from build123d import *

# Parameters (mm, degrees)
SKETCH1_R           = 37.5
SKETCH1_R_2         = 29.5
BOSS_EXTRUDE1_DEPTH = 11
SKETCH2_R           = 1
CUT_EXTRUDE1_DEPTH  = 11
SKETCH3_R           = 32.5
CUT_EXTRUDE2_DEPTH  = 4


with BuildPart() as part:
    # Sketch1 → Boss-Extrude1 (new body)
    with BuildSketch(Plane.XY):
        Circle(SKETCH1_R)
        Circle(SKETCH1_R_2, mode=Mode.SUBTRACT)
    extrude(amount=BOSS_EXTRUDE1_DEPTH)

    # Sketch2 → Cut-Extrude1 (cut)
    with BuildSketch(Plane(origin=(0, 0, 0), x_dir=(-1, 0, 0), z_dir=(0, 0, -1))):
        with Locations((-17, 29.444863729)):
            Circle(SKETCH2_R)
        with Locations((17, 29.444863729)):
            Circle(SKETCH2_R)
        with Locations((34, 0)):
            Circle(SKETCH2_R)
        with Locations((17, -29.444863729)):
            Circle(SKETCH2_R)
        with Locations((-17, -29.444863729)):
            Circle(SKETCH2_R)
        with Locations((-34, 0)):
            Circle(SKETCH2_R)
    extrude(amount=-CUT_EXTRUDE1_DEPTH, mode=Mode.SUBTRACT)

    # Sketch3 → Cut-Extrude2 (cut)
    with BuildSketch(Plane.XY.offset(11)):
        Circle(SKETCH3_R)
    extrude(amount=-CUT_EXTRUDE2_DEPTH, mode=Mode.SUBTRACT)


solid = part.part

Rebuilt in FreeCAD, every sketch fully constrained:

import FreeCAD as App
import Part
import Sketcher
Q = App.Units.Quantity

doc = App.newDocument("Part")
body = doc.addObject("PartDesign::Body", "Body")

sketch1 = doc.addObject("Sketcher::SketchObject", "Sketch")
body.addObject(sketch1)
sketch1.AttachmentSupport = (doc.XY_Plane, [""])
sketch1.MapMode = "FlatFace"
sketch1.addGeometry([
    Part.Circle(App.Vector(0, 0, 0), App.Vector(0, 0, 1), 38),
    Part.Circle(App.Vector(0, 0, 0), App.Vector(0, 0, 1), 30),
], False)
sketch1.addConstraint([
    Sketcher.Constraint("Coincident", 0, 3, -1, 1),
    Sketcher.Constraint("Coincident", 1, 3, -1, 1),
    Sketcher.Constraint("Diameter", 0, Q("75 mm")),
    Sketcher.Constraint("Diameter", 1, Q("59 mm")),
])
pad1 = doc.addObject("PartDesign::Pad", "Pad")
body.addObject(pad1)
pad1.Profile = sketch1
pad1.Length = 11

sketch2 = doc.addObject("Sketcher::SketchObject", "Sketch001")
body.addObject(sketch2)
sketch2.AttachmentSupport = (doc.XY_Plane, [""])
sketch2.MapMode = "FlatFace"
sketch2.addGeometry([
    Part.Circle(App.Vector(17, 29.4, 0), App.Vector(0, 0, 1), 1),
    Part.Circle(App.Vector(-17, 29.4, 0), App.Vector(0, 0, 1), 1),
    Part.Circle(App.Vector(-34, 0, 0), App.Vector(0, 0, 1), 1),
    Part.Circle(App.Vector(-17, -29.4, 0), App.Vector(0, 0, 1), 1),
    Part.Circle(App.Vector(17, -29.4, 0), App.Vector(0, 0, 1), 1),
    Part.Circle(App.Vector(34, 0, 0), App.Vector(0, 0, 1), 1),
], False)
sketch2.addConstraint([
    Sketcher.Constraint("Equal", 0, 1),
    Sketcher.Constraint("Equal", 1, 2),
    Sketcher.Constraint("Equal", 2, 3),
    Sketcher.Constraint("Equal", 3, 4),
    Sketcher.Constraint("Equal", 4, 5),
    Sketcher.Constraint("Symmetric", 0, 3, 3, 3, -1, 1),
    Sketcher.Constraint("Symmetric", 1, 3, 4, 3, -1, 1),
    Sketcher.Constraint("Symmetric", 2, 3, 5, 3, -1, 1),
    Sketcher.Constraint("Symmetric", 0, 3, 1, 3, -2),
    Sketcher.Constraint("PointOnObject", 2, 3, -1),
    Sketcher.Constraint("Diameter", 0, Q("2 mm")),
    Sketcher.Constraint("DistanceX", -1, 1, 0, 3, Q("17 mm")),
    Sketcher.Constraint("DistanceX", 2, 3, -1, 1, Q("34 mm")),
    Sketcher.Constraint("DistanceY", -1, 1, 0, 3, Q("29.444864 mm")),
])
pocket1 = doc.addObject("PartDesign::Pocket", "Pocket")
body.addObject(pocket1)
pocket1.Profile = sketch2
pocket1.Length = 11
pocket1.Reversed = True

sketch3 = doc.addObject("Sketcher::SketchObject", "Sketch002")
body.addObject(sketch3)
sketch3.AttachmentSupport = (doc.XY_Plane, [""])
sketch3.MapMode = "FlatFace"
sketch3.AttachmentOffset = App.Placement(App.Vector(0, 0, 11), App.Rotation())
sketch3.addGeometry(Part.Circle(App.Vector(0, 0, 0), App.Vector(0, 0, 1), 32), False)
sketch3.addConstraint([
    Sketcher.Constraint("Coincident", 0, 3, -1, 1),
    Sketcher.Constraint("Diameter", 0, Q("65 mm")),
])
pocket2 = doc.addObject("PartDesign::Pocket", "Pocket001")
body.addObject(pocket2)
pocket2.Profile = sketch3
pocket2.Length = 4

doc.recompute()
